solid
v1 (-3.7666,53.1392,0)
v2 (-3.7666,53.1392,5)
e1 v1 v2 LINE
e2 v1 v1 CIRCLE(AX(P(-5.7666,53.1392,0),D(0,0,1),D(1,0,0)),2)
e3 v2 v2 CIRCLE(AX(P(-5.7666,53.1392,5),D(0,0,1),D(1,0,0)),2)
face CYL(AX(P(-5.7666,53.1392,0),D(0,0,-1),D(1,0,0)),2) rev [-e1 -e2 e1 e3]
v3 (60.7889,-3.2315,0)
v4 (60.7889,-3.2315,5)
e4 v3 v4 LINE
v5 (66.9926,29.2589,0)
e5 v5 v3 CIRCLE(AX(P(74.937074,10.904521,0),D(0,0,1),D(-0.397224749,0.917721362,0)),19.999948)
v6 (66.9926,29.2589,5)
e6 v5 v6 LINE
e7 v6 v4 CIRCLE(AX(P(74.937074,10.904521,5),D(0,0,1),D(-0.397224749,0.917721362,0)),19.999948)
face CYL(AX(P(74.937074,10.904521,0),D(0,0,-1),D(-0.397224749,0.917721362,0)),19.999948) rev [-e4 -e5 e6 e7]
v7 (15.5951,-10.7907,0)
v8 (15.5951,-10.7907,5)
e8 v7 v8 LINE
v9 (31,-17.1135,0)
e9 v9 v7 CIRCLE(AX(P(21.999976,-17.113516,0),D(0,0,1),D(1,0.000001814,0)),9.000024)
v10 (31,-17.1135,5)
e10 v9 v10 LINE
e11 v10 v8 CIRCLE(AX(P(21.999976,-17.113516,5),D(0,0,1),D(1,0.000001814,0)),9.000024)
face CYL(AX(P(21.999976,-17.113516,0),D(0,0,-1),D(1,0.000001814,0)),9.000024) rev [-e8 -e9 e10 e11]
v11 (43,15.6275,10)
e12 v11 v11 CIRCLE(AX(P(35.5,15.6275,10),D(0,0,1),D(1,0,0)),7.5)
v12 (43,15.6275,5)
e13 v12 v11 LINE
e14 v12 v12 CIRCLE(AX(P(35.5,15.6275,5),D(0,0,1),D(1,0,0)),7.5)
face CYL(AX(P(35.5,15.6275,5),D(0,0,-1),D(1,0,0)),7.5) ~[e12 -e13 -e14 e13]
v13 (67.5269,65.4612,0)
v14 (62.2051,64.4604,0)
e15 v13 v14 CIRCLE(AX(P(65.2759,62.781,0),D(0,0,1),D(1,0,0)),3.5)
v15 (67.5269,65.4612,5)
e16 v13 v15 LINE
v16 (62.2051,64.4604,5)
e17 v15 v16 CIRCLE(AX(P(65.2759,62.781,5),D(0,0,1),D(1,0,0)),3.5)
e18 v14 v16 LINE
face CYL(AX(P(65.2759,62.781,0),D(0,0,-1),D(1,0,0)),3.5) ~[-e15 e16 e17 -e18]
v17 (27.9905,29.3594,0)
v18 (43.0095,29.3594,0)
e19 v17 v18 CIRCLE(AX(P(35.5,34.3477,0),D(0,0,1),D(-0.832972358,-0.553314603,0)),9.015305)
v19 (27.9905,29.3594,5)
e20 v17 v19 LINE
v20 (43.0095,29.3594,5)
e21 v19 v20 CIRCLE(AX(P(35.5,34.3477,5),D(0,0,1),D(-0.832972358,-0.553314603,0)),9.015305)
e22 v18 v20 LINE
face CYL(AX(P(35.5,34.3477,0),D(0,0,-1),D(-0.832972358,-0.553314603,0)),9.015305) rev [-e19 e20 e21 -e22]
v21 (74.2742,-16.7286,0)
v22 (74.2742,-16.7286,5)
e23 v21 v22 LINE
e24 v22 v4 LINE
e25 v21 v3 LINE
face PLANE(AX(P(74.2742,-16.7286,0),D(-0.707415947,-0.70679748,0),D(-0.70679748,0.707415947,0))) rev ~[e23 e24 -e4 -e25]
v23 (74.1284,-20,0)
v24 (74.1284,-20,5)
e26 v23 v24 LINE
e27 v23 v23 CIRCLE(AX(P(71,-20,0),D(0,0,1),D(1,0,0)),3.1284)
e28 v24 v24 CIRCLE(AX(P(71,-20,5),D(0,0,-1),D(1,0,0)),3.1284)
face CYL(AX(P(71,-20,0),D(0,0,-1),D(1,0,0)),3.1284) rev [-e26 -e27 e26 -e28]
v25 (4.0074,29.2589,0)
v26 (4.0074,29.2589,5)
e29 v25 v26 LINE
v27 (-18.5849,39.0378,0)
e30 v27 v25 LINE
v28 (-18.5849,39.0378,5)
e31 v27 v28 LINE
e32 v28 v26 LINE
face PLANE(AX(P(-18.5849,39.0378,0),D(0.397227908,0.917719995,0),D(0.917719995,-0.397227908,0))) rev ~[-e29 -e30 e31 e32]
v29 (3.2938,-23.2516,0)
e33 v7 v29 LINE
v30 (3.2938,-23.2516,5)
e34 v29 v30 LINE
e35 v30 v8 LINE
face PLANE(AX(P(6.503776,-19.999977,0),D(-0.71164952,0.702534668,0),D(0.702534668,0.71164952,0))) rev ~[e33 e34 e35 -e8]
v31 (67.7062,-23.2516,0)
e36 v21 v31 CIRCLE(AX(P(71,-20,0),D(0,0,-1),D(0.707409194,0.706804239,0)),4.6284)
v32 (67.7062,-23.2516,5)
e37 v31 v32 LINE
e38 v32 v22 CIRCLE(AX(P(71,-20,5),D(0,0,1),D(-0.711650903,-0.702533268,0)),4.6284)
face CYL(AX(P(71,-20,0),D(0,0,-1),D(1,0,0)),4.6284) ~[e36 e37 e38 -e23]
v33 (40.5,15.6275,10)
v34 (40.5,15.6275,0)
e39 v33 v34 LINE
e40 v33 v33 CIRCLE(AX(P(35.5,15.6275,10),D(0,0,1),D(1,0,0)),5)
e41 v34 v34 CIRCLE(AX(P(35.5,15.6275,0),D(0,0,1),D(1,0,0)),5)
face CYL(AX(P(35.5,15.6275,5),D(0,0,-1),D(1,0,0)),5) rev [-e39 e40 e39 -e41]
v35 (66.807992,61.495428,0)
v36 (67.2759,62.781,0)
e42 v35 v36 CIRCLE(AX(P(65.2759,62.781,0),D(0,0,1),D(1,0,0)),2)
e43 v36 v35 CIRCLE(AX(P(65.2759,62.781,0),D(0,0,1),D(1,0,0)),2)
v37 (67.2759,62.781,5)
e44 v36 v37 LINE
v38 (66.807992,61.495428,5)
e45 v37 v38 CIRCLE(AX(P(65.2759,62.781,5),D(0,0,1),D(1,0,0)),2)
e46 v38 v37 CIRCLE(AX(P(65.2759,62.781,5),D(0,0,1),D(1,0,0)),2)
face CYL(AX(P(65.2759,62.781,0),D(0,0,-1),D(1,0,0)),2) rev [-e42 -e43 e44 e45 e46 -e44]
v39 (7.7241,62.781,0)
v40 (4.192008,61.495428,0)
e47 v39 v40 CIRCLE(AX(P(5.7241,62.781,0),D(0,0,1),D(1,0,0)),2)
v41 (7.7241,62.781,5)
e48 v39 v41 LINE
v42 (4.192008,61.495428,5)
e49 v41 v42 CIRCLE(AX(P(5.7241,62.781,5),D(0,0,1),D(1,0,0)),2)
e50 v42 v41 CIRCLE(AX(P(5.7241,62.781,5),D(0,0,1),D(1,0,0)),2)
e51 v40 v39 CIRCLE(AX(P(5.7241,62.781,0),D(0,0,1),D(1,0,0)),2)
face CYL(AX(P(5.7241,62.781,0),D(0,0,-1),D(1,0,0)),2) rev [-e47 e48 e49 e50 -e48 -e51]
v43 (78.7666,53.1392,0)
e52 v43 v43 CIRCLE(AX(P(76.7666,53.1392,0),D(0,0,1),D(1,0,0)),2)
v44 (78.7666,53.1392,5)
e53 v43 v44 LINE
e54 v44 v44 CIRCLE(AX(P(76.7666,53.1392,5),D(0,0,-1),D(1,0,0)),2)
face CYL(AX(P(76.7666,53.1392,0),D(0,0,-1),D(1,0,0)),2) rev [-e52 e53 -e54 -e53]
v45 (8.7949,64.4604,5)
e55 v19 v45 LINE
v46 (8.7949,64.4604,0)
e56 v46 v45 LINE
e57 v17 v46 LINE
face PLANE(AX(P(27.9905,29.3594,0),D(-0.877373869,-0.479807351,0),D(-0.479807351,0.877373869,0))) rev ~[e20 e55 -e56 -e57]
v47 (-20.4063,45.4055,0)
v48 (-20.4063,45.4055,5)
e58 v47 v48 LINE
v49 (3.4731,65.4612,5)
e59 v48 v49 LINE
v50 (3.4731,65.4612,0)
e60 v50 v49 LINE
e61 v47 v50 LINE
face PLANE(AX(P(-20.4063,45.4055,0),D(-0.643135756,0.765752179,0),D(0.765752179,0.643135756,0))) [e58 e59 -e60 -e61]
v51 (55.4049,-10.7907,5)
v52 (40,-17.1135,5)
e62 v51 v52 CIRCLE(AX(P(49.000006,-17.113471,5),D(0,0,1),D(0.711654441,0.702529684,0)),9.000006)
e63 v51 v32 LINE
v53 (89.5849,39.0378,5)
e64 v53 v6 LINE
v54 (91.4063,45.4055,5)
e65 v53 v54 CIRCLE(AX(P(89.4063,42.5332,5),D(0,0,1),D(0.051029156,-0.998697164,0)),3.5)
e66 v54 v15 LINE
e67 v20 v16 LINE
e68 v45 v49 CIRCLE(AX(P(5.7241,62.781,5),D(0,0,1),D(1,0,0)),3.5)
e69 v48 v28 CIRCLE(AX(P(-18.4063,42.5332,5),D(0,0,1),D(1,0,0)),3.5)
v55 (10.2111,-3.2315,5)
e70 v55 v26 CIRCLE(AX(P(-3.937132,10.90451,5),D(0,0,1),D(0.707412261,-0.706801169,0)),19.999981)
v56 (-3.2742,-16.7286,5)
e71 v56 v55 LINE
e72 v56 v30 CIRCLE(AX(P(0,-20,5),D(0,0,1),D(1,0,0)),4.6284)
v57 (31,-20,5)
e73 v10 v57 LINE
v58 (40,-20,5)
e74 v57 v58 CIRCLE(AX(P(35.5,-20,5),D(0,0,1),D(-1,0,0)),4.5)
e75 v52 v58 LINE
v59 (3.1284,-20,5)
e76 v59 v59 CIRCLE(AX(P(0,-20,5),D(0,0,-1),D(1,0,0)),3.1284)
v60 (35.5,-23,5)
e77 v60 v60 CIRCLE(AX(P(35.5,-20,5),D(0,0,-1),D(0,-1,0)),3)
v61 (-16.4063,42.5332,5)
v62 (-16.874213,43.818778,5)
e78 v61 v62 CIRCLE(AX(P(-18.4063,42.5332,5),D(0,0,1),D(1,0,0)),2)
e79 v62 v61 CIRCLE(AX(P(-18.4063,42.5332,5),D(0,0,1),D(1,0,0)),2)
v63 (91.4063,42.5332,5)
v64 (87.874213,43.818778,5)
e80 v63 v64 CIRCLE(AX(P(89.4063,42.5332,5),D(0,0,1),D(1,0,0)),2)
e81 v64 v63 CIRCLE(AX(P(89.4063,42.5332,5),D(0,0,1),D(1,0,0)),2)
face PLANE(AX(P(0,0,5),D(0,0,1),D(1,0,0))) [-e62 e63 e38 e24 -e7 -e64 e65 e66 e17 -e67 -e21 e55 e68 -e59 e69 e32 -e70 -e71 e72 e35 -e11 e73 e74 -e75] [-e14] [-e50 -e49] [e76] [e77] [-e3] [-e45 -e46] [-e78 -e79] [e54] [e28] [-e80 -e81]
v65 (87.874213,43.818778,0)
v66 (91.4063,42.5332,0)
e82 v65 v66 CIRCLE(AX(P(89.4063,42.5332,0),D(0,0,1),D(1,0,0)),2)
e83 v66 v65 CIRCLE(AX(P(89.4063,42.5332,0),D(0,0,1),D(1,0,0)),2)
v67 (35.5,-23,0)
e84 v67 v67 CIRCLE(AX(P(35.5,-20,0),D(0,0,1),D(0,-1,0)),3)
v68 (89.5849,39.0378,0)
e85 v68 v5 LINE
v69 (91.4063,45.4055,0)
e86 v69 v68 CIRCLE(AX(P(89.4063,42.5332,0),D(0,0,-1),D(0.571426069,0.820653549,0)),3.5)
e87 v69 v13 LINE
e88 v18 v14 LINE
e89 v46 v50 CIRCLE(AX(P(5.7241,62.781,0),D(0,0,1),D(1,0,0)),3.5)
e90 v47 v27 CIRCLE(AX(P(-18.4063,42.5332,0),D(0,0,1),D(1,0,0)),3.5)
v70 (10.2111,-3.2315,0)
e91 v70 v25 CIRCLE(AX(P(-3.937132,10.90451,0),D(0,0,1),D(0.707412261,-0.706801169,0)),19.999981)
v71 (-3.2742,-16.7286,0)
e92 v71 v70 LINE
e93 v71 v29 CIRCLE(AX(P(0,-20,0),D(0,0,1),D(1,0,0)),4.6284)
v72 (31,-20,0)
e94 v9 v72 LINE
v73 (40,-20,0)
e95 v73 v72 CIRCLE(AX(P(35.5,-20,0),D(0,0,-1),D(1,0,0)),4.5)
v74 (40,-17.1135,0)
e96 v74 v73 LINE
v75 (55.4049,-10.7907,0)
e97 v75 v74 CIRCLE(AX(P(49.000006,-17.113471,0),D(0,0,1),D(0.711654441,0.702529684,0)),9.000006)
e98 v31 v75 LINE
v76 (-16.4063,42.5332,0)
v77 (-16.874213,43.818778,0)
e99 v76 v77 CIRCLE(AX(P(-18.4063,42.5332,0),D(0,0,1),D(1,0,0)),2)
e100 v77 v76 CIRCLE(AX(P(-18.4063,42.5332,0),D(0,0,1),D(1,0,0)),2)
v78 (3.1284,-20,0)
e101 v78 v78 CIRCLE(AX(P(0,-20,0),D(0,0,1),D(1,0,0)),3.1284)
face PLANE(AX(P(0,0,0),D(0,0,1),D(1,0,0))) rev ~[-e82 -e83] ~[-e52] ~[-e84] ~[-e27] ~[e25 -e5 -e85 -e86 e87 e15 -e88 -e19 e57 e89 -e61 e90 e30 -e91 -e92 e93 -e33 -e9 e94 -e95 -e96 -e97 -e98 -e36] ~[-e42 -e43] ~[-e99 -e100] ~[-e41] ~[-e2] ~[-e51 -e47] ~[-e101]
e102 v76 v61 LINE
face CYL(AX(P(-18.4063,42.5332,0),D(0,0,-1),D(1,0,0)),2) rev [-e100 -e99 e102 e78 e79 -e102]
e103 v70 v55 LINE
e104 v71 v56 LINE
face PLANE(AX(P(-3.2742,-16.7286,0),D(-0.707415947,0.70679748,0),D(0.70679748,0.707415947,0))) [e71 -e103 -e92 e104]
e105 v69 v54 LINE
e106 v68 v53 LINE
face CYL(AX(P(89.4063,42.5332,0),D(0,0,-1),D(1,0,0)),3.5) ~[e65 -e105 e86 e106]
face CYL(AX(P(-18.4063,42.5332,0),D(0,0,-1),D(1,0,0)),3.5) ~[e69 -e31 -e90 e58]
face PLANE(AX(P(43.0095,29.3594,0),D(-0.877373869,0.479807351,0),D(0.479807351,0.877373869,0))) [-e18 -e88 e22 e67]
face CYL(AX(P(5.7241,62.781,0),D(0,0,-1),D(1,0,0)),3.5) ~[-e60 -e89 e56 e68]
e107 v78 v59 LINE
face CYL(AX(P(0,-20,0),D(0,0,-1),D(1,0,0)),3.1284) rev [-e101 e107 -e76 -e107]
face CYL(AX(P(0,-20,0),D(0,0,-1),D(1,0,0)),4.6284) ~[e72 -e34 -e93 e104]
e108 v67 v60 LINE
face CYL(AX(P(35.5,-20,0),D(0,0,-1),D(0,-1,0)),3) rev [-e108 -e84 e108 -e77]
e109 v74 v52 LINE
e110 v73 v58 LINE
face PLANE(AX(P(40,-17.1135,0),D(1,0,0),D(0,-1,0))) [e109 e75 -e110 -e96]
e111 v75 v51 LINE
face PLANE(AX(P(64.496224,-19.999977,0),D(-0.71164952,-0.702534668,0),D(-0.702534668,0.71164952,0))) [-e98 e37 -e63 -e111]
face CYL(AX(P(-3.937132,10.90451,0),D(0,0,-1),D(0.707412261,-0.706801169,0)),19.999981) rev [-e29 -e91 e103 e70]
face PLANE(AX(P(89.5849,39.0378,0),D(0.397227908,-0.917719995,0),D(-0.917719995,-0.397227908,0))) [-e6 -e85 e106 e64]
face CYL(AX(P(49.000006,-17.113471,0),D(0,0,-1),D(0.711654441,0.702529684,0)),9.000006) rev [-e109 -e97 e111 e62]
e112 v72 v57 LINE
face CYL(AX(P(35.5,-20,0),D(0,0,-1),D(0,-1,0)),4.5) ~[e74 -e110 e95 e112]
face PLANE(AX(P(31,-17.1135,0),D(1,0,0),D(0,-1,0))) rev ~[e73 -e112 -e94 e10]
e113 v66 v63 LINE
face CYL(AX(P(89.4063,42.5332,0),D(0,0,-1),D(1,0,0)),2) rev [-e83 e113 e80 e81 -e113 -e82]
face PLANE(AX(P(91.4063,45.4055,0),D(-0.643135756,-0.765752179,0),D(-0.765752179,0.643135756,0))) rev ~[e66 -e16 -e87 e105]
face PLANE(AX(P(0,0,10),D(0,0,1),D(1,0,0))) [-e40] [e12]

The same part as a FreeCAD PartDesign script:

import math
import FreeCAD as App
import Part
import Sketcher

V = App.Vector

doc = App.newDocument("Part")
body = doc.addObject("PartDesign::Body", "Body")

# Sketch on XY plane
sketch1 = body.newObject("Sketcher::SketchObject", "Sketch")
sketch1.AttachmentSupport = (doc.getObject("XY_Plane"), [""])
sketch1.MapMode = "FlatFace"
sketch1.addGeometry([
    Part.ArcOfCircle(Part.Circle(V(-18.4063, 42.5332, 0), V(0, 0, 1), 3.5), math.radians(124.84973), math.radians(267.074974)),  # 0
    Part.LineSegment(V(-18.5849, 39.0378, 0), V(4.0074, 29.2589, 0)),  # 1
    Part.ArcOfCircle(Part.Circle(V(-3.9371, 10.9045, 0), V(0, 0, 1), 19.999951), math.radians(-44.975286), math.radians(66.595157)),  # 2
    Part.LineSegment(V(10.2111, -3.2315, 0), V(-3.2742, -16.7286, 0)),  # 3
    Part.ArcOfCircle(Part.Circle(V(0, -20, 0), V(0, 0, 1), 4.6284), math.radians(135.024509), math.radians(315.369397)),  # 4
    Part.LineSegment(V(3.2938, -23.2516, 0), V(15.5951, -10.7907, 0)),  # 5
    Part.ArcOfCircle(Part.Circle(V(22, -17.1135, 0), V(0, 0, 1), 9), math.radians(0), math.radians(135.369581)),  # 6
    Part.LineSegment(V(31, -17.1135, 0), V(31, -20, 0)),  # 7
    Part.ArcOfCircle(Part.Circle(V(35.5, -20, 0), V(0, 0, 1), 4.5), math.radians(180), math.radians(360)),  # 8
    Part.LineSegment(V(40, -20, 0), V(40, -17.1135, 0)),  # 9
    Part.ArcOfCircle(Part.Circle(V(49, -17.1135, 0), V(0, 0, 1), 9.00003), math.radians(44.630419), math.radians(180)),  # 10
    Part.LineSegment(V(55.4049, -10.7907, 0), V(67.7062, -23.2516, 0)),  # 11
    Part.ArcOfCircle(Part.Circle(V(71, -20, 0), V(0, 0, 1), 4.6284), math.radians(-135.369397), math.radians(44.975491)),  # 12
    Part.LineSegment(V(74.2742, -16.7286, 0), V(60.7889, -3.2315, 0)),  # 13
    Part.ArcOfCircle(Part.Circle(V(74.9371, 10.9045, 0), V(0, 0, 1), 19.999977), math.radians(113.404843), math.radians(224.975286)),  # 14
    Part.LineSegment(V(66.9926, 29.2589, 0), V(89.5849, 39.0378, 0)),  # 15
    Part.ArcOfCircle(Part.Circle(V(89.4063, 42.5332, 0), V(0, 0, 1), 3.5), math.radians(-87.074974), math.radians(55.15027)),  # 16
    Part.LineSegment(V(91.4063, 45.4055, 0), V(67.5269, 65.4612, 0)),  # 17
    Part.ArcOfCircle(Part.Circle(V(65.2759, 62.781, 0), V(0, 0, 1), 3.5), math.radians(49.974353), math.radians(151.326046)),  # 18
    Part.LineSegment(V(62.2051, 64.4604, 0), V(43.0095, 29.3594, 0)),  # 19
    Part.ArcOfCircle(Part.Circle(V(35.5, 34.3477, 0), V(0, 0, 1), 9.015305), math.radians(-146.405293), math.radians(-33.594707)),  # 20
    Part.LineSegment(V(27.9905, 29.3594, 0), V(8.7949, 64.4604, 0)),  # 21
    Part.ArcOfCircle(Part.Circle(V(5.7241, 62.781, 0), V(0, 0, 1), 3.5), math.radians(28.673954), math.radians(130.025647)),  # 22
    Part.LineSegment(V(3.4731, 65.4612, 0), V(-20.4063, 45.4055, 0)),  # 23
    Part.Circle(V(-18.4063, 42.5332, 0), V(0, 0, 1), 2),  # 24
    Part.Circle(V(-5.7666, 53.1392, 0), V(0, 0, 1), 2),  # 25
    Part.Circle(V(35.5, 15.6275, 0), V(0, 0, 1), 5),  # 26
    Part.Circle(V(0, -20, 0), V(0, 0, 1), 3.1284),  # 27
    Part.Circle(V(5.7241, 62.781, 0), V(0, 0, 1), 2),  # 28
    Part.Circle(V(65.2759, 62.781, 0), V(0, 0, 1), 2),  # 29
    Part.Circle(V(76.7666, 53.1392, 0), V(0, 0, 1), 2),  # 30
    Part.Circle(V(71, -20, 0), V(0, 0, 1), 3.1284),  # 31
    Part.Circle(V(35.5, -20, 0), V(0, 0, 1), 3),  # 32
    Part.Circle(V(89.4063, 42.5332, 0), V(0, 0, 1), 2),  # 33
], False)
sketch1.addConstraint([
    Sketcher.Constraint("Coincident", 0, 2, 1, 1),
    Sketcher.Constraint("Coincident", 1, 2, 2, 2),
    Sketcher.Constraint("Coincident", 2, 1, 3, 1),
    Sketcher.Constraint("Coincident", 3, 2, 4, 1),
    Sketcher.Constraint("Coincident", 4, 2, 5, 1),
    Sketcher.Constraint("Coincident", 5, 2, 6, 2),
    Sketcher.Constraint("Coincident", 6, 1, 7, 1),
    Sketcher.Constraint("Coincident", 7, 2, 8, 1),
    Sketcher.Constraint("Coincident", 8, 2, 9, 1),
    Sketcher.Constraint("Coincident", 9, 2, 10, 2),
    Sketcher.Constraint("Coincident", 10, 1, 11, 1),
    Sketcher.Constraint("Coincident", 11, 2, 12, 1),
    Sketcher.Constraint("Coincident", 12, 2, 13, 1),
    Sketcher.Constraint("Coincident", 13, 2, 14, 2),
    Sketcher.Constraint("Coincident", 14, 1, 15, 1),
    Sketcher.Constraint("Coincident", 15, 2, 16, 1),
    Sketcher.Constraint("Coincident", 16, 2, 17, 1),
    Sketcher.Constraint("Coincident", 17, 2, 18, 1),
    Sketcher.Constraint("Coincident", 18, 2, 19, 1),
    Sketcher.Constraint("Coincident", 19, 2, 20, 2),
    Sketcher.Constraint("Coincident", 20, 1, 21, 1),
    Sketcher.Constraint("Coincident", 21, 2, 22, 1),
    Sketcher.Constraint("Coincident", 22, 2, 23, 1),
    Sketcher.Constraint("Coincident", 23, 2, 0, 1),
    Sketcher.Constraint("Vertical", 7),
    Sketcher.Constraint("Vertical", 9),
    Sketcher.Constraint("Coincident", 24, 3, 0, 3),
    Sketcher.Constraint("Coincident", 27, 3, 4, 3),
    Sketcher.Constraint("Coincident", 28, 3, 22, 3),
    Sketcher.Constraint("Coincident", 29, 3, 18, 3),
    Sketcher.Constraint("Coincident", 31, 3, 12, 3),
    Sketcher.Constraint("Coincident", 32, 3, 8, 3),
    Sketcher.Constraint("Coincident", 33, 3, 16, 3),
    Sketcher.Constraint("PointOnObject", 4, 3, -2),
    Sketcher.Constraint("Diameter", 24, 4.0),
    Sketcher.Constraint("Diameter", 25, 4.0),
    Sketcher.Constraint("Diameter", 26, 10.0),
    Sketcher.Constraint("Diameter", 28, 4.0),
    Sketcher.Constraint("Diameter", 29, 4.0),
    Sketcher.Constraint("Diameter", 30, 4.0),
    Sketcher.Constraint("Diameter", 33, 4.0),
    Sketcher.Constraint("Radius", 2, 20.0),
    Sketcher.Constraint("Radius", 6, 9.0),
    Sketcher.Constraint("Radius", 10, 9.0),
    Sketcher.Constraint("Radius", 14, 20.0),
    Sketcher.Constraint("Radius", 0, 3.5),
    Sketcher.Constraint("Radius", 8, 4.5),
    Sketcher.Constraint("Radius", 16, 3.5),
    Sketcher.Constraint("Radius", 18, 3.5),
    Sketcher.Constraint("Radius", 22, 3.5),
    Sketcher.Constraint("Diameter", 32, 6.0),
    Sketcher.Constraint("DistanceY", 4, 3, -1, 1, 20.0),
    Sketcher.Constraint("DistanceY", 8, 3, -1, 1, 20.0),
    Sketcher.Constraint("DistanceY", 12, 3, -1, 1, 20.0),
    Sketcher.Constraint("DistanceY", 7, 2, -1, 1, 20.0),
    Sketcher.Constraint("DistanceY", 8, 2, -1, 1, 20.0),
    Sketcher.Constraint("Radius", 4, 4.6284),
    Sketcher.Constraint("Radius", 12, 4.6284),
    Sketcher.Constraint("Radius", 20, 9.0153),
    Sketcher.Constraint("DistanceX", -1, 1, 6, 3, 22.0),
    Sketcher.Constraint("DistanceX", -1, 1, 12, 3, 71.0),
    Sketcher.Constraint("DistanceX", 16, 3, 16, 2, 2.0),
    Sketcher.Constraint("DistanceX", 23, 2, 0, 3, 2.0),
    Sketcher.Constraint("Diameter", 27, 6.2568),
    Sketcher.Constraint("Diameter", 31, 6.2568),
    Sketcher.Constraint("DistanceX", -1, 1, 20, 3, 35.5),
    Sketcher.Constraint("DistanceX", -1, 1, 26, 3, 35.5),
    Sketcher.Constraint("DistanceX", 18, 3, 16, 3, 24.1304),
    Sketcher.Constraint("DistanceX", 0, 3, 22, 3, 24.1304),
    Sketcher.Constraint("DistanceX", 25, 3, 22, 3, 11.4907),
    Sketcher.Constraint("DistanceX", 18, 3, 30, 3, 11.4907),
    Sketcher.Constraint("Distance", 5, 17.51),
    Sketcher.Constraint("Distance", 11, 17.51),
    Sketcher.Constraint("DistanceY", 4, 2, 2, 1, 20.02),
    Sketcher.Constraint("Distance", 19, 40.007),
    Sketcher.Constraint("Distance", 21, 40.007),
    Sketcher.Constraint("DistanceY", 7, 2, 7, 1, 2.8865),
    Sketcher.Constraint("DistanceY", 9, 1, 9, 2, 2.8865),
    Sketcher.Constraint("DistanceX", 2, 3, -1, 1, 3.937),
    Sketcher.Constraint("DistanceX", -1, 1, 14, 3, 74.937),
    Sketcher.Constraint("DistanceX", -1, 1, 18, 3, 65.276),
    Sketcher.Constraint("DistanceY", -1, 1, 18, 3, 62.781),
    Sketcher.Constraint("DistanceX", -1, 1, 22, 3, 5.724),
    Sketcher.Constraint("DistanceY", -1, 1, 22, 3, 62.781),
    Sketcher.Constraint("DistanceX", 0, 2, -1, 1, 18.585),
    Sketcher.Constraint("DistanceY", -1, 1, 1, 2, 29.259),
    Sketcher.Constraint("DistanceX", -1, 1, 2, 1, 10.211),
    Sketcher.Constraint("DistanceX", -1, 1, 5, 2, 15.595),
    Sketcher.Constraint("DistanceX", -1, 1, 10, 1, 55.405),
    Sketcher.Constraint("DistanceX", -1, 1, 13, 2, 60.789),
    Sketcher.Constraint("DistanceY", -1, 1, 14, 1, 29.259),
    Sketcher.Constraint("DistanceX", -1, 1, 15, 2, 89.585),
    Sketcher.Constraint("DistanceX", -1, 1, 17, 2, 67.527),
    Sketcher.Constraint("DistanceX", -1, 1, 21, 2, 8.795),
    Sketcher.Constraint("DistanceY", 6, 3, 2, 3, 28.018),
    Sketcher.Constraint("DistanceY", 10, 3, 2, 3, 28.018),
    Sketcher.Constraint("DistanceY", 10, 3, 14, 3, 28.018),
    Sketcher.Constraint("DistanceY", 0, 3, 25, 3, 10.606),
    Sketcher.Constraint("DistanceY", 6, 3, 26, 3, 32.741),
    Sketcher.Constraint("DistanceY", 16, 3, 30, 3, 10.606),
    Sketcher.Constraint("DistanceY", 3, 2, 2, 1, 13.497),
    Sketcher.Constraint("DistanceX", 11, 2, 12, 2, 6.568),
    Sketcher.Constraint("DistanceY", 14, 1, 15, 2, 9.779),
    Sketcher.Constraint("DistanceY", 16, 2, 18, 2, 19.055),
    Sketcher.Constraint("DistanceY", 26, 3, 19, 2, 13.732),
    Sketcher.Constraint("DistanceX", 22, 2, 22, 3, 2.251),
    Sketcher.Constraint("DistanceY", 25, 3, 22, 2, 12.322),
])
pad1 = body.newObject("PartDesign::Pad", "Pad")
pad1.Profile = sketch1
pad1.Length = 5

# Sketch on XY plane
sketch2 = body.newObject("Sketcher::SketchObject", "Sketch001")
sketch2.AttachmentSupport = (doc.getObject("XY_Plane"), [""])
sketch2.MapMode = "FlatFace"
sketch2.AttachmentOffset = App.Placement(V(0, 0, 5), App.Rotation())
sketch2.addGeometry([
    Part.Circle(V(35.5, 15.6275, 0), V(0, 0, 1), 7.5),
    Part.Circle(V(35.5, 15.6275, 0), V(0, 0, 1), 5),
], False)
sketch2.addConstraint([
    Sketcher.Constraint("Coincident", 1, 3, 0, 3),
    Sketcher.Constraint("Diameter", 0, 15.0),
    Sketcher.Constraint("Diameter", 1, 10.0),
    Sketcher.Constraint("DistanceX", -1, 1, 0, 3, 35.5),
    Sketcher.Constraint("DistanceY", -1, 1, 0, 3, 15.6275),
])
pad2 = body.newObject("PartDesign::Pad", "Pad001")
pad2.Profile = sketch2
pad2.Length = 5

doc.recompute()
